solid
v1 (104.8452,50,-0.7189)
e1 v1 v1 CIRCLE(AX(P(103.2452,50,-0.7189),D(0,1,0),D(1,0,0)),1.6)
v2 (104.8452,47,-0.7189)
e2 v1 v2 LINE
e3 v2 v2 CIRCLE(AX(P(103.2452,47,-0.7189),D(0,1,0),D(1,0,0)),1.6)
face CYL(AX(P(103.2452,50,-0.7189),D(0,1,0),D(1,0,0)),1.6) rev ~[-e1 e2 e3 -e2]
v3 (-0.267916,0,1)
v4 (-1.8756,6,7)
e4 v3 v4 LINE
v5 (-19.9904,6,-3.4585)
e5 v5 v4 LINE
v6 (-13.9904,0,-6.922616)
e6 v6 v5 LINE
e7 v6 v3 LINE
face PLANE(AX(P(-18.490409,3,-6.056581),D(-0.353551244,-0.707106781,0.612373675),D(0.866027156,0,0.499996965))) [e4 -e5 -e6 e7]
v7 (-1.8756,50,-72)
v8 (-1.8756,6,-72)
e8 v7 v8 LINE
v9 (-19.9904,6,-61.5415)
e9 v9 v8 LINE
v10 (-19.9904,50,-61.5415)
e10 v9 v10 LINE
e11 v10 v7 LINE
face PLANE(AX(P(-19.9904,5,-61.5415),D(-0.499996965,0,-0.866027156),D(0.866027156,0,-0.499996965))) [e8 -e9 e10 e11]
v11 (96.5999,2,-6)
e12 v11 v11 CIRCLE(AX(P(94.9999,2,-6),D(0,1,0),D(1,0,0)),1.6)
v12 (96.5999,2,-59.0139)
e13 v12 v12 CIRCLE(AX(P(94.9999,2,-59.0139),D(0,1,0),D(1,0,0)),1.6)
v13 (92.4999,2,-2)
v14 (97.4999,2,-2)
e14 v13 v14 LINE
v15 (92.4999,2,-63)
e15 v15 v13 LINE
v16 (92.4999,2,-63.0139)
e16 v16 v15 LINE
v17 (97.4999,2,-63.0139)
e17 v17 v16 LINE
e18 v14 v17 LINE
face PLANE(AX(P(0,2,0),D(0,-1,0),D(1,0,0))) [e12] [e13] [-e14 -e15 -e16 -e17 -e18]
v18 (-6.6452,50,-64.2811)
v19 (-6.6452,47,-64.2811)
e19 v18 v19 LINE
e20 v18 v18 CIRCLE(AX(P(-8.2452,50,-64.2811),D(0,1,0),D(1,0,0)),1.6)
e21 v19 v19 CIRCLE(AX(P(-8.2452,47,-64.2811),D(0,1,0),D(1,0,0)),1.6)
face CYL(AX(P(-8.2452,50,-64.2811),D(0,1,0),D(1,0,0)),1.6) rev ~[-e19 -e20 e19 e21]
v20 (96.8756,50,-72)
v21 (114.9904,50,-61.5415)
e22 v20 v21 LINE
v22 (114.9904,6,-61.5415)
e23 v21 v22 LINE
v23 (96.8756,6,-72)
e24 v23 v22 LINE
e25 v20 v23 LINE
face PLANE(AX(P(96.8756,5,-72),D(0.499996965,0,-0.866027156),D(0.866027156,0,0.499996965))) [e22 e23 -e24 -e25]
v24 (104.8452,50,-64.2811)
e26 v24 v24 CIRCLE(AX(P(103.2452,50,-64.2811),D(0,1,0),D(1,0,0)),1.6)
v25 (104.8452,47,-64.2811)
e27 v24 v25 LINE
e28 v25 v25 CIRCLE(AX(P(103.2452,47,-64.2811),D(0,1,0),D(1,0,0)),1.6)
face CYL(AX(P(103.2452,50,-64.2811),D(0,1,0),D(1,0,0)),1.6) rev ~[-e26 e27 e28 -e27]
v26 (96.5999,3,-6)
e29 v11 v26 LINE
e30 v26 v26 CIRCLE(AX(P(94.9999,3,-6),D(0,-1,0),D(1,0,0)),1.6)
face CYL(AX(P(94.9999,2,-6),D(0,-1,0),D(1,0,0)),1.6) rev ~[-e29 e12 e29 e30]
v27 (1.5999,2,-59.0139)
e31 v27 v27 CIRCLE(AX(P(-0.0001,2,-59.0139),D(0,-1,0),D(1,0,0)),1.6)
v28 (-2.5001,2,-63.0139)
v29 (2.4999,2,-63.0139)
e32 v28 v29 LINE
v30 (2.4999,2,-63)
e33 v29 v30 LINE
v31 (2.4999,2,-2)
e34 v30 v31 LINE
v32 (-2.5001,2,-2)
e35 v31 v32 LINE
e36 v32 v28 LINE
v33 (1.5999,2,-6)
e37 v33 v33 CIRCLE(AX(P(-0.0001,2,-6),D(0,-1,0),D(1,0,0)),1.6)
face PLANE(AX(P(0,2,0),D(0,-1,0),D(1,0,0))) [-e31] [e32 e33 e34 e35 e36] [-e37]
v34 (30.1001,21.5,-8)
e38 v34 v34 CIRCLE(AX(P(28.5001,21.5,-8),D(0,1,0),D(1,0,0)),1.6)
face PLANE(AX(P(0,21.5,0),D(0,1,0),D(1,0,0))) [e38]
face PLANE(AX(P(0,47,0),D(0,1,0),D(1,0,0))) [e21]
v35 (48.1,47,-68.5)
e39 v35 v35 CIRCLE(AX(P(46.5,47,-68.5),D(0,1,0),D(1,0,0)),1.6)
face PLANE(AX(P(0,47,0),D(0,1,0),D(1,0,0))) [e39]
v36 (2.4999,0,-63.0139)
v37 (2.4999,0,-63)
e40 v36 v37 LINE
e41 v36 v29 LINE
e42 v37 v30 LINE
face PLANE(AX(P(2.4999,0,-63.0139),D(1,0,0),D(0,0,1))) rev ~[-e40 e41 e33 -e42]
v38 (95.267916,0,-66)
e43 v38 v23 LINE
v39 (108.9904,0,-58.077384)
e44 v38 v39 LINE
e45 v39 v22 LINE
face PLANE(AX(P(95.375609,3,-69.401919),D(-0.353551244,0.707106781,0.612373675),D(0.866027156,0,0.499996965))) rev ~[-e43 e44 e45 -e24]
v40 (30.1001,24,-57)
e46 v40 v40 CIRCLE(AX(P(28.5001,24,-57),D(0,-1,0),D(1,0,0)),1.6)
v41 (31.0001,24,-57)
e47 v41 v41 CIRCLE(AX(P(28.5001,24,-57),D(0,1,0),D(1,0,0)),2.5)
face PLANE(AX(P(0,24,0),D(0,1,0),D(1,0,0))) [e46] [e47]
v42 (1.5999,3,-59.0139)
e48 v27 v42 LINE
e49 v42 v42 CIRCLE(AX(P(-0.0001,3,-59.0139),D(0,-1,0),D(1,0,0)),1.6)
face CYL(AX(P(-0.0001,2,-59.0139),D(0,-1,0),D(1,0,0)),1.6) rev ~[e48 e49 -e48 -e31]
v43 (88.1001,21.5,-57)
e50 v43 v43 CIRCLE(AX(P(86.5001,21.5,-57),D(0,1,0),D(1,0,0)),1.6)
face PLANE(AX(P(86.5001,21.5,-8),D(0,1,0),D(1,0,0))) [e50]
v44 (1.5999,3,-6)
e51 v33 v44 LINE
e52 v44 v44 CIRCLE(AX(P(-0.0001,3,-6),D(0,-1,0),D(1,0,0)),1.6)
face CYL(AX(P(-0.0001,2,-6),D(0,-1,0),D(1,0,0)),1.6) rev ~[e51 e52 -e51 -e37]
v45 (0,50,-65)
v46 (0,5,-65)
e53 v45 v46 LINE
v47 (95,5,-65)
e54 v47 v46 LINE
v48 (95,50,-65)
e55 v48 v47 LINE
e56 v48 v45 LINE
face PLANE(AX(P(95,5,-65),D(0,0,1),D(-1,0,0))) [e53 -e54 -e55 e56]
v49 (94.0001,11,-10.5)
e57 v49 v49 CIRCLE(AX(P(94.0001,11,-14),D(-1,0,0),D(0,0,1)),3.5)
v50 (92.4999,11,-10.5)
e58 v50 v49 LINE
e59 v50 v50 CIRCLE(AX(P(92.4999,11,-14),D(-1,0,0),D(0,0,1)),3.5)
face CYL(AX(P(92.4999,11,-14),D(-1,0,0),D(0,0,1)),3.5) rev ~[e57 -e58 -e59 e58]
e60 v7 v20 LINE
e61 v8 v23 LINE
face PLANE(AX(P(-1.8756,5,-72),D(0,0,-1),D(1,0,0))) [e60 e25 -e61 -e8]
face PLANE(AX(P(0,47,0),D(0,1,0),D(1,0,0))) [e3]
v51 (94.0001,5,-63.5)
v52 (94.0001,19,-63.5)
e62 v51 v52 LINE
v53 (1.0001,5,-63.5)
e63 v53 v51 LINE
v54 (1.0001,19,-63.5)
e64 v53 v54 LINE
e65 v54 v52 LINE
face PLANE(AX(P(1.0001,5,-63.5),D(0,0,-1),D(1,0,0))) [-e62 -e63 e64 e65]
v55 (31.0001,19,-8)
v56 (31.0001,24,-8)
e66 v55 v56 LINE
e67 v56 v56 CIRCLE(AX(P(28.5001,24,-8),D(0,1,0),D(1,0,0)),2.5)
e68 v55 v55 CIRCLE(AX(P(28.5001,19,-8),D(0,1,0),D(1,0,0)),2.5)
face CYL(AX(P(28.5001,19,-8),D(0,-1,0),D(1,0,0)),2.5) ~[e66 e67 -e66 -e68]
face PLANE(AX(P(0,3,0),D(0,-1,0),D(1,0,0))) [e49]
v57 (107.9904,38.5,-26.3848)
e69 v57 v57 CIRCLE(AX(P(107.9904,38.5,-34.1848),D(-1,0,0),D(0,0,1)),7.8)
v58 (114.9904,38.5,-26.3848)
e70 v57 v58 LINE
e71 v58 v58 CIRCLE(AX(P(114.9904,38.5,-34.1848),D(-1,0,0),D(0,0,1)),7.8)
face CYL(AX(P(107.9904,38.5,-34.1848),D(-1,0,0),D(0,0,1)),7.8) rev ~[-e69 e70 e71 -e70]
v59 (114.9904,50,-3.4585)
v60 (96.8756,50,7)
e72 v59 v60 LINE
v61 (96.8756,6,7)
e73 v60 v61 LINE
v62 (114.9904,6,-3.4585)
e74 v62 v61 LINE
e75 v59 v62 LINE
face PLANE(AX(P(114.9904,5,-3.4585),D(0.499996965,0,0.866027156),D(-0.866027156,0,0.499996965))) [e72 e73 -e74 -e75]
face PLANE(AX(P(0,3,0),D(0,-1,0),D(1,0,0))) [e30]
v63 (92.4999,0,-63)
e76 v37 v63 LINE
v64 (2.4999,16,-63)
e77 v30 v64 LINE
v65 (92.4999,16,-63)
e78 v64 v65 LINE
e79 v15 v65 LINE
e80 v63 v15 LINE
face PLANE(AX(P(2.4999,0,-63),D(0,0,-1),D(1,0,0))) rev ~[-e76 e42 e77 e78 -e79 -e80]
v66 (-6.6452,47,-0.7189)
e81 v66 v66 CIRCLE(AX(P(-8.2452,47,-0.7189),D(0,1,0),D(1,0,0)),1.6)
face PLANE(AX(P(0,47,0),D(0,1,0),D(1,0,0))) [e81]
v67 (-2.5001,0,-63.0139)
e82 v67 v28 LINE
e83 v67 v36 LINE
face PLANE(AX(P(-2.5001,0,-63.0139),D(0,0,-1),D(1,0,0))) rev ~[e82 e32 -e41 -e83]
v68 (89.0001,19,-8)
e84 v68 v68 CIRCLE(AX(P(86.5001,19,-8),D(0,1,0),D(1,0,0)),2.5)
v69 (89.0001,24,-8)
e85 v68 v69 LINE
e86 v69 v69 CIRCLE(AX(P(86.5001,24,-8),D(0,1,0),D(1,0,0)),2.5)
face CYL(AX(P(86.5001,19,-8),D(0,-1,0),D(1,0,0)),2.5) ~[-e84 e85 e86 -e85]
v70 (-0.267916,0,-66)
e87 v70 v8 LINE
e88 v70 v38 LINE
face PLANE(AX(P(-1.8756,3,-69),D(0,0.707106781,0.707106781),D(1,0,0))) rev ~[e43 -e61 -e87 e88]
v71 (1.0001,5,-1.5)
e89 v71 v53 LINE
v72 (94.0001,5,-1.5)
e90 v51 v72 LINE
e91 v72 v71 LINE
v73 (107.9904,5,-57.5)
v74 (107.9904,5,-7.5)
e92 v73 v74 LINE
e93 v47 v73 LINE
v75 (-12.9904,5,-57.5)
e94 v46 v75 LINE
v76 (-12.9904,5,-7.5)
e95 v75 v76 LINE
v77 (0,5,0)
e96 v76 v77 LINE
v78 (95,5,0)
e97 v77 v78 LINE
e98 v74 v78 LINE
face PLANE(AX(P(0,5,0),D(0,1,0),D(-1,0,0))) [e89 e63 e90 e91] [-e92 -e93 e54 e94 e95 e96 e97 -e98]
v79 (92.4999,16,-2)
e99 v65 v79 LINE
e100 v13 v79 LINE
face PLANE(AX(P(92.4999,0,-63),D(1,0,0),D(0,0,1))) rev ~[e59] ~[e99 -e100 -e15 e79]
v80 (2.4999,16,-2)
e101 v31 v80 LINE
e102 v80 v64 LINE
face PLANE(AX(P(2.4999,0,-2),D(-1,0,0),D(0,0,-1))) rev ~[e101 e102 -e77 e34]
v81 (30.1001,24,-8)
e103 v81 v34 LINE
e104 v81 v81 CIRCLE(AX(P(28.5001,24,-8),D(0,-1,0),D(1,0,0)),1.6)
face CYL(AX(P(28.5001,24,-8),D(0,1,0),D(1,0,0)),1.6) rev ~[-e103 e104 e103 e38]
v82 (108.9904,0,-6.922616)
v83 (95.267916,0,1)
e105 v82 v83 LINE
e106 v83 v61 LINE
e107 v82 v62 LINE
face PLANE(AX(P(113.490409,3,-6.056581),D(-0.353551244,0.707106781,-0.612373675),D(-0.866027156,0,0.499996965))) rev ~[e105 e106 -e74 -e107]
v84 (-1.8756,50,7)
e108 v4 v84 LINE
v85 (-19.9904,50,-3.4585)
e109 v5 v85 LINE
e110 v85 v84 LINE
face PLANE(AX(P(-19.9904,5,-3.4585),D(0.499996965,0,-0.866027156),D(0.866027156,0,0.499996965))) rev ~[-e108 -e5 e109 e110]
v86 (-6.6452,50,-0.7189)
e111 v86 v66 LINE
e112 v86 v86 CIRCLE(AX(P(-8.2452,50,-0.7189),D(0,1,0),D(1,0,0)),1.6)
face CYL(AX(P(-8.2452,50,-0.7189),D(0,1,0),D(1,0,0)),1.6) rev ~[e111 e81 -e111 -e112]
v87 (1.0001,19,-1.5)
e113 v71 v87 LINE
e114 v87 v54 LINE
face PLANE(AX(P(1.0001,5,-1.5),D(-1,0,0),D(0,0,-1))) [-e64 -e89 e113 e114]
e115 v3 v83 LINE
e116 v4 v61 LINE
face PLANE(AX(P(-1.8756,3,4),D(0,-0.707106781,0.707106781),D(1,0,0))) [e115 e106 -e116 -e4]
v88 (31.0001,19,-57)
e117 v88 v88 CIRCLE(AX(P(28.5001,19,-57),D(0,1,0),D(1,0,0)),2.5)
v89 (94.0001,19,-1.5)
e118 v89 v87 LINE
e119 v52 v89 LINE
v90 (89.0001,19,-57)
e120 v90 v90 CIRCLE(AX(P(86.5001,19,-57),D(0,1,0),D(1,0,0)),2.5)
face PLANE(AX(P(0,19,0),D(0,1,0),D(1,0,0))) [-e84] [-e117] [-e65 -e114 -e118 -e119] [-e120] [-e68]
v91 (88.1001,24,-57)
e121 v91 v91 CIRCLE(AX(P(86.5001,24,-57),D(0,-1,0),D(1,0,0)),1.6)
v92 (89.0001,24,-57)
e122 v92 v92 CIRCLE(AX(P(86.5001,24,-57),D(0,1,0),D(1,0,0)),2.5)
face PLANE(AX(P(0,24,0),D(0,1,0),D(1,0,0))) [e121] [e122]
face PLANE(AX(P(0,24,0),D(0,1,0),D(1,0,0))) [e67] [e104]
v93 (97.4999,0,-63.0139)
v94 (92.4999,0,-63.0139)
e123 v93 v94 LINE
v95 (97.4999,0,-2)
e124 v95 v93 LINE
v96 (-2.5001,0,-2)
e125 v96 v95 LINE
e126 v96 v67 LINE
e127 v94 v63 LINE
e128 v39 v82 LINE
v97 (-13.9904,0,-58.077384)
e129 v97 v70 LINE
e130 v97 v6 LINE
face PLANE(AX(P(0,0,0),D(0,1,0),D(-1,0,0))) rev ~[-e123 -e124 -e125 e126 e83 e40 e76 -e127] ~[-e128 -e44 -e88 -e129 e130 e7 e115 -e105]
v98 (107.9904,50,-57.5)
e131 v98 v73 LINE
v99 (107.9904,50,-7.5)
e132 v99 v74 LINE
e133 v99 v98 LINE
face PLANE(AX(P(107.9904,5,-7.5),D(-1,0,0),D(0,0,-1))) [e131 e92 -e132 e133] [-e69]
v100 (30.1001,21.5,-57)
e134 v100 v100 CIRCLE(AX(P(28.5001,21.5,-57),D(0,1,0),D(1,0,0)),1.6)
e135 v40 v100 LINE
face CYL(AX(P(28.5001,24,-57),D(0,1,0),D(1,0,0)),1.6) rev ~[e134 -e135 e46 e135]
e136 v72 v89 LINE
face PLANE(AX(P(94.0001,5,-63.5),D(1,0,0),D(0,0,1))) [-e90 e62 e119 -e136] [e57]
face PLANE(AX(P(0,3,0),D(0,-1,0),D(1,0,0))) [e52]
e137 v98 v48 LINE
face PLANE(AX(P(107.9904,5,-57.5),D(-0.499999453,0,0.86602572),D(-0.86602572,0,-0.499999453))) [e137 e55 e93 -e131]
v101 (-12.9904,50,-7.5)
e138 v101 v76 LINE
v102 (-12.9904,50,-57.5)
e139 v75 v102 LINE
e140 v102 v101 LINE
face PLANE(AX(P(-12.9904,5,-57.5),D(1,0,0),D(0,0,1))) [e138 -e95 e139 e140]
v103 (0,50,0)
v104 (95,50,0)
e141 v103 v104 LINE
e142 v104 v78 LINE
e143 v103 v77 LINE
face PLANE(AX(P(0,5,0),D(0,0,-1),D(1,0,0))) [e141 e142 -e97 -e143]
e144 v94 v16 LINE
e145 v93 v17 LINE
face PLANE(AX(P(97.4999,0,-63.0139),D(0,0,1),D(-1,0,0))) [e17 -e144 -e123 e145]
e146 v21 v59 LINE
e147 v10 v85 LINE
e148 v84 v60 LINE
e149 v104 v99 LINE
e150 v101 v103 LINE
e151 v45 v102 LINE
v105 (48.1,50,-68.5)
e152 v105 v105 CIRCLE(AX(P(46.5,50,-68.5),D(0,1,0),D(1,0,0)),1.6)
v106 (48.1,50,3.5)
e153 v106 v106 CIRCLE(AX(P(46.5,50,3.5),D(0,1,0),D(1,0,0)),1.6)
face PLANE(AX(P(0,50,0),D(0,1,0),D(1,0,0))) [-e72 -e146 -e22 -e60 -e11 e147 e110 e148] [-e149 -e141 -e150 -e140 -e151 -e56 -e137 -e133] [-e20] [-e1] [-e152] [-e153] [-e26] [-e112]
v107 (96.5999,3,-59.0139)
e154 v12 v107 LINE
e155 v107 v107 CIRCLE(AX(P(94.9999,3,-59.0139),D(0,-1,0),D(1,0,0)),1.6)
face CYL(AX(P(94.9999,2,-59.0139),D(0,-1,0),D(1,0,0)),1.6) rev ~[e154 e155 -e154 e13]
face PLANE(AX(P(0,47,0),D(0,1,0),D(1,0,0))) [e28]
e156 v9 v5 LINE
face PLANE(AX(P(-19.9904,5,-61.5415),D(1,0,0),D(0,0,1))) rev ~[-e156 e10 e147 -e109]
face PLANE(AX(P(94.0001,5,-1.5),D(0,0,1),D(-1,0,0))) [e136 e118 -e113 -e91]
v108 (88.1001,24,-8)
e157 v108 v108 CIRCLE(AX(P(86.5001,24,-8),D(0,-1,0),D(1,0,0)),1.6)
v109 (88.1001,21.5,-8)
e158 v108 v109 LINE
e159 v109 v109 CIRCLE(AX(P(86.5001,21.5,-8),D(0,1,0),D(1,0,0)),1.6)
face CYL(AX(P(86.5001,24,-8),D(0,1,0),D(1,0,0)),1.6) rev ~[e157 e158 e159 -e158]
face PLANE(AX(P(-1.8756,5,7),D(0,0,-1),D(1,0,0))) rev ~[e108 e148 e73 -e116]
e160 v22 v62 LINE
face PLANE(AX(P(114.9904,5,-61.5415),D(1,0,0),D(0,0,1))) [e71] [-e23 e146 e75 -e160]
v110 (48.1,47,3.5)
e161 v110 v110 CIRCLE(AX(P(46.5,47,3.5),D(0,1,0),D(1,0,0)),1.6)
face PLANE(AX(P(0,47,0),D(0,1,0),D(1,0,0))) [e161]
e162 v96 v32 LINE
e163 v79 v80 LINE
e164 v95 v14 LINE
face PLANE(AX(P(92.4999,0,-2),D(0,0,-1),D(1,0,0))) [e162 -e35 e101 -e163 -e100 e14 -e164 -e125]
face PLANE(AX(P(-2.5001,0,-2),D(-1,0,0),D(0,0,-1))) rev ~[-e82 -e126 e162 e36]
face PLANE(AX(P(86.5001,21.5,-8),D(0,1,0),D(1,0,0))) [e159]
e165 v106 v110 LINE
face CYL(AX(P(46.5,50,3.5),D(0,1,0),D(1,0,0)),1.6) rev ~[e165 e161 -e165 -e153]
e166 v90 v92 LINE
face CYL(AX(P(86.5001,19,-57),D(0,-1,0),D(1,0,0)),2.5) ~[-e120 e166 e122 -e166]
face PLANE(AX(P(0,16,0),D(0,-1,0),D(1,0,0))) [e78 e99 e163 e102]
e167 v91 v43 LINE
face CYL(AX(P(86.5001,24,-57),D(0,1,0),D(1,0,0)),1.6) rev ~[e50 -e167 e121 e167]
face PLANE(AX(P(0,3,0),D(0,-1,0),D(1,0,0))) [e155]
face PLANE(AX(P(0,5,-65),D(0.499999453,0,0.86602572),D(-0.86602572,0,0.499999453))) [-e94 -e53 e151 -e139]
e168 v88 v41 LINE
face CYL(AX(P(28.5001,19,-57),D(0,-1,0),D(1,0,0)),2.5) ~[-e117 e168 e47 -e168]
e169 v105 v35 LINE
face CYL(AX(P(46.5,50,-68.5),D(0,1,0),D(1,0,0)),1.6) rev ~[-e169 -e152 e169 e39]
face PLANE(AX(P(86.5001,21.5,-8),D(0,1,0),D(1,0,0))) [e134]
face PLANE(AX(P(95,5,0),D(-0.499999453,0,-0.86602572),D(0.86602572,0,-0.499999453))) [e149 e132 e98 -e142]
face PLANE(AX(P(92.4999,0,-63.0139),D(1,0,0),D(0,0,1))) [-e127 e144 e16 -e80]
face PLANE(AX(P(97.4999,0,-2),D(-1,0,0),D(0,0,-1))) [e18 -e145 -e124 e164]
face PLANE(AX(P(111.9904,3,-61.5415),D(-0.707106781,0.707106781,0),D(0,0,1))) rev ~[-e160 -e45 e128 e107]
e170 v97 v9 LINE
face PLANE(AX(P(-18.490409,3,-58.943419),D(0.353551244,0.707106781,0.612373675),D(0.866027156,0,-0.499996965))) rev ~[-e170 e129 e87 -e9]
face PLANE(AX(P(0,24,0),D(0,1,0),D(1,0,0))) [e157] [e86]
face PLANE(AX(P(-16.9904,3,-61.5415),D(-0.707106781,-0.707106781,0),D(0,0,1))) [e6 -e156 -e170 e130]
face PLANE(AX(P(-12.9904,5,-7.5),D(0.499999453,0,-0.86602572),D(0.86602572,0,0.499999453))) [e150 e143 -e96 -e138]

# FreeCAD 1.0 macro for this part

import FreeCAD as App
import Part
import Sketcher
Q = App.Units.Quantity


def edges_at(feature, points):
    """Names of the edges that pass closest to the given points."""
    edges = feature.Shape.Edges
    near = lambda p: min(range(len(edges)), key=lambda i: edges[i].distToShape(Part.Vertex(*p))[0])
    return sorted({f"Edge{near(p) + 1}" for p in points})


def add_polygon(sketch, points):
    """Adds a closed chain of lines whose ends are joined by coincident constraints."""
    first, n = sketch.GeometryCount, len(points)
    for a, b in zip(points, points[1:] + points[:1]):
        sketch.addGeometry(Part.LineSegment(App.Vector(*a, 0), App.Vector(*b, 0)), False)
    for i in range(n):
        sketch.addConstraint(Sketcher.Constraint("Coincident", first + i, 2, first + (i + 1) % n, 1))

doc = App.newDocument("Part")
body = doc.addObject("PartDesign::Body", "Body")

# Sketch on XZ plane
sketch1 = body.newObject("Sketcher::SketchObject", "Sketch")
sketch1.AttachmentSupport = (doc.getObject("XZ_Plane"), [""])
sketch1.MapMode = "FlatFace"
add_polygon(sketch1, [(95, -65), (0, -65), (-13, -58), (-13, -8), (0, 0), (95, 0), (108, -8), (108, -58)])  # lines 0-7
sketch1.addConstraint(Sketcher.Constraint("Horizontal", 0))
sketch1.addConstraint(Sketcher.Constraint("Vertical", 2))
sketch1.addConstraint(Sketcher.Constraint("Horizontal", 4))
sketch1.addConstraint(Sketcher.Constraint("Vertical", 6))
sketch1.addConstraint(Sketcher.Constraint("Coincident", 3, 2, -1, 1))
sketch1.addConstraint(Sketcher.Constraint("PointOnObject", 0, 2, -2))
sketch1.addConstraint(Sketcher.Constraint("Parallel", 1, 5))
sketch1.addConstraint(Sketcher.Constraint("Parallel", 3, 7))
sketch1.addConstraint(Sketcher.Constraint("Horizontal", 2, 2, 5, 2))
sketch1.addConstraint(Sketcher.Constraint("Horizontal", 1, 2, 6, 2))
sketch1.addConstraint(Sketcher.Constraint("Vertical", 4, 2, 7, 2))
sketch1.addConstraint(Sketcher.Constraint("DistanceX", 0, 2, 0, 1, Q("95 mm")))
sketch1.addConstraint(Sketcher.Constraint("Distance", 1, Q("15 mm")))
sketch1.addConstraint(Sketcher.Constraint("DistanceY", 0, 2, -1, 1, Q("65 mm")))
sketch1.addConstraint(Sketcher.Constraint("DistanceY", 2, 1, 2, 2, Q("50 mm")))
pad1 = body.newObject("PartDesign::Pad", "Pad")
pad1.Profile = sketch1
pad1.Length = 5
pad1.Reversed = True

# Sketch on XZ plane
sketch2 = body.newObject("Sketcher::SketchObject", "Sketch001")
sketch2.AttachmentSupport = (doc.getObject("XZ_Plane"), [""])
sketch2.MapMode = "FlatFace"
sketch2.AttachmentOffset = App.Placement(App.Vector(0, 0, -5), App.Rotation())
add_polygon(sketch2, [(94, -64), (1, -64), (1, -2), (94, -2)])  # lines 0-3
sketch2.addConstraint(Sketcher.Constraint("Horizontal", 0))
sketch2.addConstraint(Sketcher.Constraint("Vertical", 1))
sketch2.addConstraint(Sketcher.Constraint("Horizontal", 2))
sketch2.addConstraint(Sketcher.Constraint("Vertical", 3))
sketch2.addConstraint(Sketcher.Constraint("DistanceX", 0, 2, 0, 1, Q("93 mm")))
sketch2.addConstraint(Sketcher.Constraint("DistanceY", 1, 1, 1, 2, Q("62 mm")))
sketch2.addConstraint(Sketcher.Constraint("DistanceY", 1, 2, -1, 1, Q("1.5 mm")))
sketch2.addConstraint(Sketcher.Constraint("DistanceX", -1, 1, 0, 2, Q("1 mm")))
pad2 = body.newObject("PartDesign::Pad", "Pad001")
pad2.Profile = sketch2
pad2.Length = 14
pad2.Reversed = True

# Sketch on XZ plane
sketch3 = body.newObject("Sketcher::SketchObject", "Sketch002")
sketch3.AttachmentSupport = (doc.getObject("XZ_Plane"), [""])
sketch3.MapMode = "FlatFace"
sketch3.AttachmentOffset = App.Placement(App.Vector(0, 0, -5), App.Rotation())
add_polygon(sketch3, [(-2, -72), (-20, -62), (-20, -3), (-2, 7), (97, 7), (115, -3), (115, -62), (97, -72)])  # lines 0-7
add_polygon(sketch3, [(-13, -8), (-13, -58), (0, -65), (95, -65), (108, -58), (108, -8), (95, 0), (0, 0)])  # lines 8-15
sketch3.addConstraint(Sketcher.Constraint("Vertical", 1))
sketch3.addConstraint(Sketcher.Constraint("Horizontal", 3))
sketch3.addConstraint(Sketcher.Constraint("Vertical", 5))
sketch3.addConstraint(Sketcher.Constraint("Horizontal", 7))
sketch3.addConstraint(Sketcher.Constraint("Vertical", 8))
sketch3.addConstraint(Sketcher.Constraint("Horizontal", 10))
sketch3.addConstraint(Sketcher.Constraint("Vertical", 12))
sketch3.addConstraint(Sketcher.Constraint("Horizontal", 14))
sketch3.addConstraint(Sketcher.Constraint("Coincident", 14, 2, -1, 1))
sketch3.addConstraint(Sketcher.Constraint("PointOnObject", 9, 2, -2))
sketch3.addConstraint(Sketcher.Constraint("Parallel", 0, 4))
sketch3.addConstraint(Sketcher.Constraint("Parallel", 2, 6))
sketch3.addConstraint(Sketcher.Constraint("Parallel", 4, 9))
sketch3.addConstraint(Sketcher.Constraint("Parallel", 6, 11))
sketch3.addConstraint(Sketcher.Constraint("Parallel", 9, 13))
sketch3.addConstraint(Sketcher.Constraint("Parallel", 11, 15))
sketch3.addConstraint(Sketcher.Constraint("Horizontal", 1, 2, 4, 2))
sketch3.addConstraint(Sketcher.Constraint("Horizontal", 0, 2, 5, 2))
sketch3.addConstraint(Sketcher.Constraint("Horizontal", 8, 2, 11, 2))
sketch3.addConstraint(Sketcher.Constraint("Horizontal", 12, 2, 15, 2))
sketch3.addConstraint(Sketcher.Constraint("Vertical", 3, 2, 6, 2))
sketch3.addConstraint(Sketcher.Constraint("Vertical", 2, 2, 7, 2))
sketch3.addConstraint(Sketcher.Constraint("DistanceY", -1, 1, 2, 2, Q("7 mm")))
sketch3.addConstraint(Sketcher.Constraint("DistanceX", 0, 2, 8, 2, Q("7 mm")))
sketch3.addConstraint(Sketcher.Constraint("DistanceY", 7, 2, 9, 2, Q("7 mm")))
sketch3.addConstraint(Sketcher.Constraint("DistanceX", 11, 2, 5, 2, Q("7 mm")))
sketch3.addConstraint(Sketcher.Constraint("DistanceX", 10, 1, 10, 2, Q("95 mm")))
sketch3.addConstraint(Sketcher.Constraint("DistanceY", 8, 2, 8, 1, Q("50 mm")))
sketch3.addConstraint(Sketcher.Constraint("Angle", 0, Q("150.0002 deg")))
sketch3.addConstraint(Sketcher.Constraint("Distance", 9, Q("15 mm")))
sketch3.addConstraint(Sketcher.Constraint("DistanceY", 1, 1, 1, 2, Q("58.083 mm")))
pad3 = body.newObject("PartDesign::Pad", "Pad002")
pad3.Profile = sketch3
pad3.Type = "TwoLengths"
pad3.Length = 45
pad3.Length2 = 5
pad3.Reversed = True

# Sketch on XZ plane
sketch4 = body.newObject("Sketcher::SketchObject", "Sketch003")
sketch4.AttachmentSupport = (doc.getObject("XZ_Plane"), [""])
sketch4.MapMode = "FlatFace"
add_polygon(sketch4, [(2, -2), (2, -63), (92, -63), (92, -2)])  # lines 0-3
sketch4.addConstraint(Sketcher.Constraint("Vertical", 0))
sketch4.addConstraint(Sketcher.Constraint("Horizontal", 1))
sketch4.addConstraint(Sketcher.Constraint("Vertical", 2))
sketch4.addConstraint(Sketcher.Constraint("Horizontal", 3))
sketch4.addConstraint(Sketcher.Constraint("DistanceX", 1, 1, 1, 2, Q("90 mm")))
sketch4.addConstraint(Sketcher.Constraint("DistanceY", 0, 2, 0, 1, Q("61 mm")))
sketch4.addConstraint(Sketcher.Constraint("DistanceY", 0, 2, -1, 1, Q("63 mm")))
sketch4.addConstraint(Sketcher.Constraint("DistanceX", -1, 1, 0, 2, Q("2.5 mm")))
pocket1 = body.newObject("PartDesign::Pocket", "Pocket")
pocket1.Profile = sketch4
pocket1.Length = 16
doc.recompute()

chamfer = body.newObject("PartDesign::Chamfer", "Chamfer")
chamfer.Base = (pocket1, edges_at(pocket1, [
    (47.5, 0, -72),
    (105.933, 0, -66.771),
    (114.99, 0, -32.5),
    (105.933, 0, 1.771),
    (47.5, 0, 7),
    (-10.933, 0, 1.771),
    (-19.99, 0, -32.5),
    (-10.933, 0, -66.771),
]))
chamfer.Size = 6

# Sketch on XZ plane
sketch5 = body.newObject("Sketcher::SketchObject", "Sketch004")
sketch5.AttachmentSupport = (doc.getObject("XZ_Plane"), [""])
sketch5.MapMode = "FlatFace"
add_polygon(sketch5, [(2, -63), (2, -2), (-3, -2), (-3, -63)])  # lines 0-3
add_polygon(sketch5, [(97, -2), (92, -2), (92, -63), (97, -63)])  # lines 4-7
sketch5.addConstraint(Sketcher.Constraint("Vertical", 0))
sketch5.addConstraint(Sketcher.Constraint("Horizontal", 1))
sketch5.addConstraint(Sketcher.Constraint("Vertical", 2))
sketch5.addConstraint(Sketcher.Constraint("Horizontal", 3))
sketch5.addConstraint(Sketcher.Constraint("Horizontal", 4))
sketch5.addConstraint(Sketcher.Constraint("Vertical", 5))
sketch5.addConstraint(Sketcher.Constraint("Horizontal", 6))
sketch5.addConstraint(Sketcher.Constraint("Vertical", 7))
sketch5.addConstraint(Sketcher.Constraint("Horizontal", 1, 2, 4, 2))
sketch5.addConstraint(Sketcher.Constraint("Horizontal", 3, 2, 5, 2))
sketch5.addConstraint(Sketcher.Constraint("Equal", 3, 4))
sketch5.addConstraint(Sketcher.Constraint("DistanceX", 1, 2, 1, 1, Q("5 mm")))
sketch5.addConstraint(Sketcher.Constraint("DistanceY", 0, 2, -1, 1, Q("2 mm")))
sketch5.addConstraint(Sketcher.Constraint("DistanceX", 0, 2, 4, 2, Q("90 mm")))
sketch5.addConstraint(Sketcher.Constraint("DistanceX", -1, 1, 0, 2, Q("2.5 mm")))
sketch5.addConstraint(Sketcher.Constraint("DistanceY", 0, 1, 0, 2, Q("61.014 mm")))
pocket2 = body.newObject("PartDesign::Pocket", "Pocket001")
pocket2.Profile = sketch5
pocket2.Length = 2

# Sketch on XZ plane
sketch6 = body.newObject("Sketcher::SketchObject", "Sketch005")
sketch6.AttachmentSupport = (doc.getObject("XZ_Plane"), [""])
sketch6.MapMode = "FlatFace"
sketch6.AttachmentOffset = App.Placement(App.Vector(0, 0, -2), App.Rotation())
sketch6.addGeometry(Part.Circle(App.Vector(0, -6, 0), App.Vector(0, 0, 1), 1.6), False)
sketch6.addGeometry(Part.Circle(App.Vector(95, -6, 0), App.Vector(0, 0, 1), 1.6), False)
sketch6.addGeometry(Part.Circle(App.Vector(95, -59, 0), App.Vector(0, 0, 1), 1.6), False)
sketch6.addGeometry(Part.Circle(App.Vector(0, -59, 0), App.Vector(0, 0, 1), 1.6), False)
sketch6.addConstraint(Sketcher.Constraint("Equal", 0, 1))
sketch6.addConstraint(Sketcher.Constraint("Equal", 1, 2))
sketch6.addConstraint(Sketcher.Constraint("Equal", 2, 3))
sketch6.addConstraint(Sketcher.Constraint("PointOnObject", 0, 3, -2))
sketch6.addConstraint(Sketcher.Constraint("PointOnObject", 3, 3, -2))
sketch6.addConstraint(Sketcher.Constraint("Horizontal", 0, 3, 1, 3))
sketch6.addConstraint(Sketcher.Constraint("Horizontal", 2, 3, 3, 3))
sketch6.addConstraint(Sketcher.Constraint("Vertical", 1, 3, 2, 3))
sketch6.addConstraint(Sketcher.Constraint("Diameter", 0, Q("3.2 mm")))
sketch6.addConstraint(Sketcher.Constraint("DistanceY", 0, 3, -1, 1, Q("6 mm")))
sketch6.addConstraint(Sketcher.Constraint("DistanceX", -1, 1, 1, 3, Q("95 mm")))
sketch6.addConstraint(Sketcher.Constraint("DistanceY", 2, 3, -1, 1, Q("59.014 mm")))
pocket3 = body.newObject("PartDesign::Pocket", "Pocket002")
pocket3.Profile = sketch6
pocket3.Length = 1

# Sketch on XZ plane
sketch7 = body.newObject("Sketcher::SketchObject", "Sketch006")
sketch7.AttachmentSupport = (doc.getObject("XZ_Plane"), [""])
sketch7.MapMode = "FlatFace"
sketch7.AttachmentOffset = App.Placement(App.Vector(0, 0, -19), App.Rotation())
sketch7.addGeometry(Part.Circle(App.Vector(28.5, -57, 0), App.Vector(0, 0, 1), 2.5), False)
sketch7.addGeometry(Part.Circle(App.Vector(28.5, -8, 0), App.Vector(0, 0, 1), 2.5), False)
sketch7.addGeometry(Part.Circle(App.Vector(86.5, -57, 0), App.Vector(0, 0, 1), 2.5), False)
sketch7.addGeometry(Part.Circle(App.Vector(86.5, -8, 0), App.Vector(0, 0, 1), 2.5), False)
sketch7.addConstraint(Sketcher.Constraint("Equal", 0, 1))
sketch7.addConstraint(Sketcher.Constraint("Equal", 1, 2))
sketch7.addConstraint(Sketcher.Constraint("Equal", 2, 3))
sketch7.addConstraint(Sketcher.Constraint("Horizontal", 0, 3, 2, 3))
sketch7.addConstraint(Sketcher.Constraint("Horizontal", 1, 3, 3, 3))
sketch7.addConstraint(Sketcher.Constraint("Vertical", 0, 3, 1, 3))
sketch7.addConstraint(Sketcher.Constraint("Vertical", 2, 3, 3, 3))
sketch7.addConstraint(Sketcher.Constraint("Diameter", 0, Q("5 mm")))
sketch7.addConstraint(Sketcher.Constraint("DistanceX", 0, 3, 2, 3, Q("58 mm")))
sketch7.addConstraint(Sketcher.Constraint("DistanceY", 0, 3, -1, 1, Q("57 mm")))
sketch7.addConstraint(Sketcher.Constraint("DistanceY", 1, 3, -1, 1, Q("8 mm")))
sketch7.addConstraint(Sketcher.Constraint("DistanceX", -1, 1, 0, 3, Q("28.5 mm")))
pad4 = body.newObject("PartDesign::Pad", "Pad003")
pad4.Profile = sketch7
pad4.Length = 5
pad4.Reversed = True

# Sketch on YZ plane
sketch8 = body.newObject("Sketcher::SketchObject", "Sketch007")
sketch8.AttachmentSupport = (doc.getObject("YZ_Plane"), [""])
sketch8.MapMode = "FlatFace"
sketch8.AttachmentOffset = App.Placement(App.Vector(0, 0, 92.4999), App.Rotation())
sketch8.addGeometry(Part.Circle(App.Vector(11, -14, 0), App.Vector(0, 0, 1), 3.5), False)
sketch8.addConstraint(Sketcher.Constraint("Diameter", 0, Q("7 mm")))
sketch8.addConstraint(Sketcher.Constraint("DistanceX", -1, 1, 0, 3, Q("11 mm")))
sketch8.addConstraint(Sketcher.Constraint("DistanceY", 0, 3, -1, 1, Q("14 mm")))
pocket4 = body.newObject("PartDesign::Pocket", "Pocket003")
pocket4.Profile = sketch8
pocket4.Length = 5
pocket4.Reversed = True

# Sketch on XZ plane
sketch9 = body.newObject("Sketcher::SketchObject", "Sketch008")
sketch9.AttachmentSupport = (doc.getObject("XZ_Plane"), [""])
sketch9.MapMode = "FlatFace"
sketch9.AttachmentOffset = App.Placement(App.Vector(0, 0, -50), App.Rotation())
sketch9.addGeometry(Part.Circle(App.Vector(103.2, -0.7, 0), App.Vector(0, 0, 1), 1.6), False)
sketch9.addGeometry(Part.Circle(App.Vector(103.2, -64.3, 0), App.Vector(0, 0, 1), 1.6), False)
sketch9.addGeometry(Part.Circle(App.Vector(-8.2, -64.3, 0), App.Vector(0, 0, 1), 1.6), False)
sketch9.addGeometry(Part.Circle(App.Vector(-8.2, -0.7, 0), App.Vector(0, 0, 1), 1.6), False)
sketch9.addGeometry(Part.Circle(App.Vector(46.5, 3.5, 0), App.Vector(0, 0, 1), 1.6), False)
sketch9.addGeometry(Part.Circle(App.Vector(46.5, -68.5, 0), App.Vector(0, 0, 1), 1.6), False)
sketch9.addConstraint(Sketcher.Constraint("Equal", 0, 1))
sketch9.addConstraint(Sketcher.Constraint("Equal", 1, 2))
sketch9.addConstraint(Sketcher.Constraint("Equal", 2, 3))
sketch9.addConstraint(Sketcher.Constraint("Equal", 3, 4))
sketch9.addConstraint(Sketcher.Constraint("Equal", 4, 5))
sketch9.addConstraint(Sketcher.Constraint("Horizontal", 1, 3, 2, 3))
sketch9.addConstraint(Sketcher.Constraint("Horizontal", 0, 3, 3, 3))
sketch9.addConstraint(Sketcher.Constraint("Vertical", 0, 3, 1, 3))
sketch9.addConstraint(Sketcher.Constraint("Vertical", 2, 3, 3, 3))
sketch9.addConstraint(Sketcher.Constraint("Vertical", 4, 3, 5, 3))
sketch9.addConstraint(Sketcher.Constraint("Diameter", 0, Q("3.2 mm")))
sketch9.addConstraint(Sketcher.Constraint("DistanceX", -1, 1, 4, 3, Q("46.5 mm")))
sketch9.addConstraint(Sketcher.Constraint("DistanceY", -1, 1, 4, 3, Q("3.5 mm")))
sketch9.addConstraint(Sketcher.Constraint("DistanceY", 5, 3, 4, 3, Q("72 mm")))
sketch9.addConstraint(Sketcher.Constraint("DistanceY", 0, 3, -1, 1, Q("0.719 mm")))
sketch9.addConstraint(Sketcher.Constraint("DistanceY", 1, 3, -1, 1, Q("64.281 mm")))
sketch9.addConstraint(Sketcher.Constraint("DistanceX", -1, 1, 0, 3, Q("103.2452 mm")))
sketch9.addConstraint(Sketcher.Constraint("DistanceX", 2, 3, -1, 1, Q("8.2452 mm")))
pocket5 = body.newObject("PartDesign::Pocket", "Pocket004")
pocket5.Profile = sketch9
pocket5.Length = 3
pocket5.Reversed = True

# Sketch on XZ plane
sketch10 = body.newObject("Sketcher::SketchObject", "Sketch009")
sketch10.AttachmentSupport = (doc.getObject("XZ_Plane"), [""])
sketch10.MapMode = "FlatFace"
sketch10.AttachmentOffset = App.Placement(App.Vector(0, 0, -24), App.Rotation())
sketch10.addGeometry(Part.Circle(App.Vector(28.5, -8, 0), App.Vector(0, 0, 1), 1.6), False)
sketch10.addConstraint(Sketcher.Constraint("Diameter", 0, Q("3.2 mm")))
sketch10.addConstraint(Sketcher.Constraint("DistanceY", 0, 3, -1, 1, Q("8 mm")))
sketch10.addConstraint(Sketcher.Constraint("DistanceX", -1, 1, 0, 3, Q("28.5 mm")))
pocket6 = body.newObject("PartDesign::Pocket", "Pocket005")
pocket6.Profile = sketch10
pocket6.Length = 2.5
pocket6.Reversed = True

# Sketch on XZ plane
sketch11 = body.newObject("Sketcher::SketchObject", "Sketch010")
sketch11.AttachmentSupport = (doc.getObject("XZ_Plane"), [""])
sketch11.MapMode = "FlatFace"
sketch11.AttachmentOffset = App.Placement(App.Vector(0, 0, -24), App.Rotation())
sketch11.addGeometry(Part.Circle(App.Vector(86.5, -8, 0), App.Vector(0, 0, 1), 1.6), False)
sketch11.addGeometry(Part.Circle(App.Vector(86.5, -57, 0), App.Vector(0, 0, 1), 1.6), False)
sketch11.addGeometry(Part.Circle(App.Vector(28.5, -57, 0), App.Vector(0, 0, 1), 1.6), False)
sketch11.addConstraint(Sketcher.Constraint("Equal", 0, 1))
sketch11.addConstraint(Sketcher.Constraint("Equal", 1, 2))
sketch11.addConstraint(Sketcher.Constraint("Horizontal", 1, 3, 2, 3))
sketch11.addConstraint(Sketcher.Constraint("Vertical", 0, 3, 1, 3))
sketch11.addConstraint(Sketcher.Constraint("Diameter", 0, Q("3.2 mm")))
sketch11.addConstraint(Sketcher.Constraint("DistanceY", 1, 3, 0, 3, Q("49 mm")))
sketch11.addConstraint(Sketcher.Constraint("DistanceX", 2, 3, 1, 3, Q("58 mm")))
sketch11.addConstraint(Sketcher.Constraint("DistanceY", 0, 3, -1, 1, Q("8 mm")))
sketch11.addConstraint(Sketcher.Constraint("DistanceX", -1, 1, 0, 3, Q("86.5 mm")))
pocket7 = body.newObject("PartDesign::Pocket", "Pocket006")
pocket7.Profile = sketch11
pocket7.Length = 2.5
pocket7.Reversed = True

# Sketch on YZ plane
sketch12 = body.newObject("Sketcher::SketchObject", "Sketch011")
sketch12.AttachmentSupport = (doc.getObject("YZ_Plane"), [""])
sketch12.MapMode = "FlatFace"
sketch12.AttachmentOffset = App.Placement(App.Vector(0, 0, 107.9904), App.Rotation())
sketch12.addGeometry(Part.Circle(App.Vector(38, -34, 0), App.Vector(0, 0, 1), 8), False)
sketch12.addConstraint(Sketcher.Constraint("Diameter", 0, Q("15.6 mm")))
sketch12.addConstraint(Sketcher.Constraint("DistanceX", -1, 1, 0, 3, Q("38.5 mm")))
sketch12.addConstraint(Sketcher.Constraint("DistanceY", 0, 3, -1, 1, Q("34.1848 mm")))
pocket8 = body.newObject("PartDesign::Pocket", "Pocket007")
pocket8.Profile = sketch12
pocket8.Length = 10
pocket8.Reversed = True

doc.recompute()
